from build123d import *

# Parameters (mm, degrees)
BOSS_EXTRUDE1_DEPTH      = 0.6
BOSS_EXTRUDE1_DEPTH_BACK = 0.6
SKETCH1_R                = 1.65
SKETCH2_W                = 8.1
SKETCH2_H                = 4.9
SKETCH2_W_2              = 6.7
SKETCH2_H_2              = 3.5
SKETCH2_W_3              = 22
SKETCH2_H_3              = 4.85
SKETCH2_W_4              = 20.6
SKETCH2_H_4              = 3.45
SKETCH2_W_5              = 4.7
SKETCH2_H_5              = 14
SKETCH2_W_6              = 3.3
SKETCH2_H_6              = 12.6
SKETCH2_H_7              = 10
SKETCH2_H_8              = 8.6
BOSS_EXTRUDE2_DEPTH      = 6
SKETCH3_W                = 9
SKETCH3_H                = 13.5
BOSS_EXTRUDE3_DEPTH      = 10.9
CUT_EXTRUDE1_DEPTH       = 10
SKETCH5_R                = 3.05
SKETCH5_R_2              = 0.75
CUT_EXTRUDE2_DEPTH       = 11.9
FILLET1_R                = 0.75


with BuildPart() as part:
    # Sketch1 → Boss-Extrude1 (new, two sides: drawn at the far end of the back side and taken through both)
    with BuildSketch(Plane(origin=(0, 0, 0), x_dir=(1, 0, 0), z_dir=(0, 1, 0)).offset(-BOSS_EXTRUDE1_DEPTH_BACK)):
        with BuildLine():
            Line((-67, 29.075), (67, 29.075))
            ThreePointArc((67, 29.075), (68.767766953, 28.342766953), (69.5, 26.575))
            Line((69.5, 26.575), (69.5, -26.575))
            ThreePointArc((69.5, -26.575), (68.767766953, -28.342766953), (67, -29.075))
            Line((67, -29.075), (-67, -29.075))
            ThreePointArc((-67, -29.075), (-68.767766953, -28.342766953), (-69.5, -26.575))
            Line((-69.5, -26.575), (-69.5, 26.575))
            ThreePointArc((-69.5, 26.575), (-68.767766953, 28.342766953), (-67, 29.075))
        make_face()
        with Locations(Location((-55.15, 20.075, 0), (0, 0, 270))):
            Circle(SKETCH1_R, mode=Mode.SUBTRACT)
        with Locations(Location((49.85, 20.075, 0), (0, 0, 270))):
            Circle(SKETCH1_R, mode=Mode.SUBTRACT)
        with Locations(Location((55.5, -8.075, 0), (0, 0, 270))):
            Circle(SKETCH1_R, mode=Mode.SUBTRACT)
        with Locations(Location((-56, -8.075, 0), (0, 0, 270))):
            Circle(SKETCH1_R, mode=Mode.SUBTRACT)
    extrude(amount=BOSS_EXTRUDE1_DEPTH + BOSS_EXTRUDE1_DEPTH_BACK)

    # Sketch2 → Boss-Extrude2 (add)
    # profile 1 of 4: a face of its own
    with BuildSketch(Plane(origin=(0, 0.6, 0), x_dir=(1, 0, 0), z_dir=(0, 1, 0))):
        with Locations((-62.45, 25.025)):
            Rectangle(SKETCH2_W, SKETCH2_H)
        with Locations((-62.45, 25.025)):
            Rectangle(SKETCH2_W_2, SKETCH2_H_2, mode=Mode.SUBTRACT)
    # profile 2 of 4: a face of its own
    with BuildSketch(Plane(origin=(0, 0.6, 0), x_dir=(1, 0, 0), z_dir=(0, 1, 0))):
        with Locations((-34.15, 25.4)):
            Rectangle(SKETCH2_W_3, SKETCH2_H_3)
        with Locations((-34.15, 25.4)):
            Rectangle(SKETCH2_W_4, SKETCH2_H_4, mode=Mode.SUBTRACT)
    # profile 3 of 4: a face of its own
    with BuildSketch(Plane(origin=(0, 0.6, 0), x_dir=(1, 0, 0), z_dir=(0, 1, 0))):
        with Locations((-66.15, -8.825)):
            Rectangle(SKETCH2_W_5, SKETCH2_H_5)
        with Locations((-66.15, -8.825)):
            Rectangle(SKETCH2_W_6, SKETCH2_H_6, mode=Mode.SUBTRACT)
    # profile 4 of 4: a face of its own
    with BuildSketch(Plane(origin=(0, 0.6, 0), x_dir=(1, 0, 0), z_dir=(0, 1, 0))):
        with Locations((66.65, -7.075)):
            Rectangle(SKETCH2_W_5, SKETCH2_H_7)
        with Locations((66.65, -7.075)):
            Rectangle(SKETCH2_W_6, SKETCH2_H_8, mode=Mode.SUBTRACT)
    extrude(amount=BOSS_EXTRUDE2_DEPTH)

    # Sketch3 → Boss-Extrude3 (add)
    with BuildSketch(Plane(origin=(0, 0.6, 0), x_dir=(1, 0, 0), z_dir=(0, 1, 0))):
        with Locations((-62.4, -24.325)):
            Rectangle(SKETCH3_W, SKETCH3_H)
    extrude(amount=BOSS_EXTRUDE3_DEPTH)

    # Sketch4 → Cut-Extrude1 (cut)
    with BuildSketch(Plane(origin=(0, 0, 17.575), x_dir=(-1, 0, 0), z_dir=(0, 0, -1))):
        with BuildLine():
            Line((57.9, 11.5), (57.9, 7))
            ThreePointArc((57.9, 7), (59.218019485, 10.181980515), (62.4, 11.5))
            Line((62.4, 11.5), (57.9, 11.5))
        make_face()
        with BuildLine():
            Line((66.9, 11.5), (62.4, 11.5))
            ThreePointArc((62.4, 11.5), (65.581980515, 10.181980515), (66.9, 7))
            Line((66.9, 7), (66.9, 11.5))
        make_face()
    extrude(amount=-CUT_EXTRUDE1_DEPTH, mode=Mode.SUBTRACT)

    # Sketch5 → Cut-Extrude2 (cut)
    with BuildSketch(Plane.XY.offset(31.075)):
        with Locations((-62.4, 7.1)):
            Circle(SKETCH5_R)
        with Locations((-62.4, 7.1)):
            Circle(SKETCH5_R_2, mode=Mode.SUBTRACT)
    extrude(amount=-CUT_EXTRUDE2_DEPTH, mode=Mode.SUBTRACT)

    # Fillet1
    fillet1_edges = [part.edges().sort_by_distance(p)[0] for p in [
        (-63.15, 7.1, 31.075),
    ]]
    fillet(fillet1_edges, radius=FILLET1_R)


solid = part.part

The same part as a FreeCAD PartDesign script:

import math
import FreeCAD as App
import Part
import Sketcher

V = App.Vector


def edges_at(feature, points):
    """Names of the edges that pass closest to the given points."""
    edges = feature.Shape.Edges
    near = lambda p: min(range(len(edges)), key=lambda i: edges[i].distToShape(Part.Vertex(*p))[0])
    return sorted({f"Edge{near(p) + 1}" for p in points})

doc = App.newDocument("Part")
params = doc.addObject("Spreadsheet::Sheet", "Params")
for row, (alias, value) in enumerate([
    ("sketch1_diameter", "3.3 mm"),
    ("sketch1_radius", "2.5 mm"),
    ("sketch1_width", "134 mm"),
    ("sketch1_height", "53.15 mm"),
    ("pad1_length", "0.6 mm"),
    ("pad1_length2", "0.6 mm"),
    ("sketch2_width", "22 mm"),
    ("sketch2_height", "14 mm"),
    ("sketch2_height2", "10 mm"),
    ("sketch2_width2", "8.1 mm"),
    ("sketch2_width3", "6.7 mm"),
    ("pad2_length", "6 mm"),
    ("sketch3_width", "9 mm"),
    ("sketch3_height", "13.5 mm"),
    ("pad3_length", "10.9 mm"),
    ("sketch4_radius", "4.5 mm"),
    ("pocket1_length", "10 mm"),
    ("sketch5_diameter", "6.1 mm"),
    ("sketch5_diameter2", "1.5 mm"),
    ("pocket2_length", "11.9 mm"),
    ("fillet_radius", "0.75 mm"),
], start=1):
    params.set(f"A{row}", alias)
    params.set(f"B{row}", "=" + value)
    params.setAlias(f"B{row}", alias)

body = doc.addObject("PartDesign::Body", "Body")

sketch1 = doc.addObject("Sketcher::SketchObject", "Sketch")
body.addObject(sketch1)
sketch1.AttachmentSupport = (doc.XZ_Plane, [""])
sketch1.MapMode = "FlatFace"
sketch1.addGeometry(Part.LineSegment(V(67, -29.1, 0), V(-67, -29.1, 0)), False)
sketch1.addGeometry(Part.ArcOfCircle(Part.Circle(V(-67, -26.6, 0), V(0, 0, 1), 2.5), math.radians(180), math.radians(270)), False)
sketch1.addGeometry(Part.LineSegment(V(-69.5, -26.6, 0), V(-69.5, 26.6, 0)), False)
sketch1.addGeometry(Part.ArcOfCircle(Part.Circle(V(-67, 26.6, 0), V(0, 0, 1), 2.5), math.radians(90), math.radians(180)), False)
sketch1.addGeometry(Part.LineSegment(V(-67, 29.1, 0), V(67, 29.1, 0)), False)
sketch1.addGeometry(Part.ArcOfCircle(Part.Circle(V(67, 26.6, 0), V(0, 0, 1), 2.5), math.radians(0), math.radians(90)), False)
sketch1.addGeometry(Part.LineSegment(V(69.5, 26.6, 0), V(69.5, -26.6, 0)), False)
sketch1.addGeometry(Part.ArcOfCircle(Part.Circle(V(67, -26.6, 0), V(0, 0, 1), 2.5), math.radians(-90), math.radians(0)), False)
sketch1.addGeometry(Part.Circle(V(55.5, 8.1, 0), V(0, 0, 1), 1.6), False)
sketch1.addGeometry(Part.Circle(V(-56, 8.1, 0), V(0, 0, 1), 1.6), False)
sketch1.addGeometry(Part.Circle(V(49.9, -20.1, 0), V(0, 0, 1), 1.6), False)
sketch1.addGeometry(Part.Circle(V(-55.1, -20.1, 0), V(0, 0, 1), 1.6), False)
sketch1.addConstraint(Sketcher.Constraint("Tangent", 0, 2, 1, 2))
sketch1.addConstraint(Sketcher.Constraint("Tangent", 1, 1, 2, 1))
sketch1.addConstraint(Sketcher.Constraint("Tangent", 2, 2, 3, 2))
sketch1.addConstraint(Sketcher.Constraint("Tangent", 3, 1, 4, 1))
sketch1.addConstraint(Sketcher.Constraint("Tangent", 4, 2, 5, 2))
sketch1.addConstraint(Sketcher.Constraint("Tangent", 5, 1, 6, 1))
sketch1.addConstraint(Sketcher.Constraint("Tangent", 6, 2, 7, 2))
sketch1.addConstraint(Sketcher.Constraint("Tangent", 7, 1, 0, 1))
sketch1.addConstraint(Sketcher.Constraint("Horizontal", 0))
sketch1.addConstraint(Sketcher.Constraint("Vertical", 2))
sketch1.addConstraint(Sketcher.Constraint("Horizontal", 4))
sketch1.addConstraint(Sketcher.Constraint("Vertical", 6))
sketch1.addConstraint(Sketcher.Constraint("Equal", 1, 3))
sketch1.addConstraint(Sketcher.Constraint("Equal", 3, 5))
sketch1.addConstraint(Sketcher.Constraint("Equal", 5, 7))
sketch1.addConstraint(Sketcher.Constraint("Equal", 8, 9))
sketch1.addConstraint(Sketcher.Constraint("Equal", 9, 10))
sketch1.addConstraint(Sketcher.Constraint("Equal", 10, 11))
sketch1.addConstraint(Sketcher.Constraint("Symmetric", 1, 3, 5, 3, -1, 1))
sketch1.addConstraint(Sketcher.Constraint("Horizontal", 8, 3, 9, 3))
sketch1.addConstraint(Sketcher.Constraint("Horizontal", 10, 3, 11, 3))
sketch1.addConstraint(Sketcher.Constraint("Diameter", 8, 3.3))
sketch1.addConstraint(Sketcher.Constraint("Radius", 1, 2.5))
sketch1.addConstraint(Sketcher.Constraint("DistanceX", 0, 2, 0, 1, 134.0))
sketch1.addConstraint(Sketcher.Constraint("DistanceX", 9, 3, -1, 1, 56.0))
sketch1.addConstraint(Sketcher.Constraint("DistanceX", 11, 3, 10, 3, 105.0))
sketch1.addConstraint(Sketcher.Constraint("DistanceY", 0, 2, 11, 3, 9.0))
sketch1.addConstraint(Sketcher.Constraint("DistanceY", 9, 3, 3, 1, 21.0))
sketch1.addConstraint(Sketcher.Constraint("DistanceX", 8, 3, 5, 1, 14.0))
sketch1.addConstraint(Sketcher.Constraint("DistanceY", 2, 1, 2, 2, 53.15))
sketch1.addConstraint(Sketcher.Constraint("DistanceX", -1, 1, 10, 3, 49.85))
sketch1.setExpression("Constraints[21]", "Params.sketch1_diameter")
sketch1.setExpression("Constraints[22]", "Params.sketch1_radius")
sketch1.setExpression("Constraints[23]", "Params.sketch1_width")
sketch1.setExpression("Constraints[29]", "Params.sketch1_height")
pad1 = doc.addObject("PartDesign::Pad", "Pad")
body.addObject(pad1)
pad1.Profile = sketch1
pad1.Type = "TwoLengths"
pad1.setExpression("Length", "Params.pad1_length")
pad1.setExpression("Length2", "Params.pad1_length2")
pad1.Reversed = True

sketch2 = doc.addObject("Sketcher::SketchObject", "Sketch001")
body.addObject(sketch2)
sketch2.AttachmentSupport = (doc.XZ_Plane, [""])
sketch2.MapMode = "FlatFace"
sketch2.AttachmentOffset = App.Placement(V(0, 0, -0.6), App.Rotation())
sketch2.addGeometry(Part.LineSegment(V(-66.5, -27.5, 0), V(-66.5, -22.6, 0)), False)
sketch2.addGeometry(Part.LineSegment(V(-66.5, -22.6, 0), V(-58.4, -22.6, 0)), False)
sketch2.addGeometry(Part.LineSegment(V(-58.4, -22.6, 0), V(-58.4, -27.5, 0)), False)
sketch2.addGeometry(Part.LineSegment(V(-58.4, -27.5, 0), V(-66.5, -27.5, 0)), False)
sketch2.addGeometry(Part.LineSegment(V(-59.1, -23.3, 0), V(-65.8, -23.3, 0)), False)
sketch2.addGeometry(Part.LineSegment(V(-65.8, -23.3, 0), V(-65.8, -26.8, 0)), False)
sketch2.addGeometry(Part.LineSegment(V(-65.8, -26.8, 0), V(-59.1, -26.8, 0)), False)
sketch2.addGeometry(Part.LineSegment(V(-59.1, -26.8, 0), V(-59.1, -23.3, 0)), False)
sketch2.addGeometry(Part.LineSegment(V(-45.1, -27.8, 0), V(-45.1, -23, 0)), False)
sketch2.addGeometry(Part.LineSegment(V(-45.1, -23, 0), V(-23.1, -23, 0)), False)
sketch2.addGeometry(Part.LineSegment(V(-23.1, -23, 0), V(-23.1, -27.8, 0)), False)
sketch2.addGeometry(Part.LineSegment(V(-23.1, -27.8, 0), V(-45.1, -27.8, 0)), False)
sketch2.addGeometry(Part.LineSegment(V(-23.9, -23.7, 0), V(-44.5, -23.7, 0)), False)
sketch2.addGeometry(Part.LineSegment(V(-44.5, -23.7, 0), V(-44.5, -27.1, 0)), False)
sketch2.addGeometry(Part.LineSegment(V(-44.5, -27.1, 0), V(-23.9, -27.1, 0)), False)
sketch2.addGeometry(Part.LineSegment(V(-23.9, -27.1, 0), V(-23.9, -23.7, 0)), False)
sketch2.addGeometry(Part.LineSegment(V(-68.5, 1.8, 0), V(-68.5, 15.8, 0)), False)
sketch2.addGeometry(Part.LineSegment(V(-68.5, 15.8, 0), V(-63.8, 15.8, 0)), False)
sketch2.addGeometry(Part.LineSegment(V(-63.8, 15.8, 0), V(-63.8, 1.8, 0)), False)
sketch2.addGeometry(Part.LineSegment(V(-63.8, 1.8, 0), V(-68.5, 1.8, 0)), False)
sketch2.addGeometry(Part.LineSegment(V(-64.5, 15.1, 0), V(-67.8, 15.1, 0)), False)
sketch2.addGeometry(Part.LineSegment(V(-67.8, 15.1, 0), V(-67.8, 2.5, 0)), False)
sketch2.addGeometry(Part.LineSegment(V(-67.8, 2.5, 0), V(-64.5, 2.5, 0)), False)
sketch2.addGeometry(Part.LineSegment(V(-64.5, 2.5, 0), V(-64.5, 15.1, 0)), False)
sketch2.addGeometry(Part.LineSegment(V(64.3, 2.1, 0), V(64.3, 12.1, 0)), False)
sketch2.addGeometry(Part.LineSegment(V(64.3, 12.1, 0), V(69, 12.1, 0)), False)
sketch2.addGeometry(Part.LineSegment(V(69, 12.1, 0), V(69, 2.1, 0)), False)
sketch2.addGeometry(Part.LineSegment(V(69, 2.1, 0), V(64.3, 2.1, 0)), False)
sketch2.addGeometry(Part.LineSegment(V(68.3, 11.4, 0), V(65, 11.4, 0)), False)
sketch2.addGeometry(Part.LineSegment(V(65, 11.4, 0), V(65, 2.8, 0)), False)
sketch2.addGeometry(Part.LineSegment(V(65, 2.8, 0), V(68.3, 2.8, 0)), False)
sketch2.addGeometry(Part.LineSegment(V(68.3, 2.8, 0), V(68.3, 11.4, 0)), False)
sketch2.addConstraint(Sketcher.Constraint("Coincident", 0, 2, 1, 1))
sketch2.addConstraint(Sketcher.Constraint("Coincident", 1, 2, 2, 1))
sketch2.addConstraint(Sketcher.Constraint("Coincident", 2, 2, 3, 1))
sketch2.addConstraint(Sketcher.Constraint("Coincident", 3, 2, 0, 1))
sketch2.addConstraint(Sketcher.Constraint("Coincident", 4, 2, 5, 1))
sketch2.addConstraint(Sketcher.Constraint("Coincident", 5, 2, 6, 1))
sketch2.addConstraint(Sketcher.Constraint("Coincident", 6, 2, 7, 1))
sketch2.addConstraint(Sketcher.Constraint("Coincident", 7, 2, 4, 1))
sketch2.addConstraint(Sketcher.Constraint("Coincident", 8, 2, 9, 1))
sketch2.addConstraint(Sketcher.Constraint("Coincident", 9, 2, 10, 1))
sketch2.addConstraint(Sketcher.Constraint("Coincident", 10, 2, 11, 1))
sketch2.addConstraint(Sketcher.Constraint("Coincident", 11, 2, 8, 1))
sketch2.addConstraint(Sketcher.Constraint("Coincident", 12, 2, 13, 1))
sketch2.addConstraint(Sketcher.Constraint("Coincident", 13, 2, 14, 1))
sketch2.addConstraint(Sketcher.Constraint("Coincident", 14, 2, 15, 1))
sketch2.addConstraint(Sketcher.Constraint("Coincident", 15, 2, 12, 1))
sketch2.addConstraint(Sketcher.Constraint("Coincident", 16, 2, 17, 1))
sketch2.addConstraint(Sketcher.Constraint("Coincident", 17, 2, 18, 1))
sketch2.addConstraint(Sketcher.Constraint("Coincident", 18, 2, 19, 1))
sketch2.addConstraint(Sketcher.Constraint("Coincident", 19, 2, 16, 1))
sketch2.addConstraint(Sketcher.Constraint("Coincident", 20, 2, 21, 1))
sketch2.addConstraint(Sketcher.Constraint("Coincident", 21, 2, 22, 1))
sketch2.addConstraint(Sketcher.Constraint("Coincident", 22, 2, 23, 1))
sketch2.addConstraint(Sketcher.Constraint("Coincident", 23, 2, 20, 1))
sketch2.addConstraint(Sketcher.Constraint("Coincident", 24, 2, 25, 1))
sketch2.addConstraint(Sketcher.Constraint("Coincident", 25, 2, 26, 1))
sketch2.addConstraint(Sketcher.Constraint("Coincident", 26, 2, 27, 1))
sketch2.addConstraint(Sketcher.Constraint("Coincident", 27, 2, 24, 1))
sketch2.addConstraint(Sketcher.Constraint("Coincident", 28, 2, 29, 1))
sketch2.addConstraint(Sketcher.Constraint("Coincident", 29, 2, 30, 1))
sketch2.addConstraint(Sketcher.Constraint("Coincident", 30, 2, 31, 1))
sketch2.addConstraint(Sketcher.Constraint("Coincident", 31, 2, 28, 1))
sketch2.addConstraint(Sketcher.Constraint("Vertical", 0))
sketch2.addConstraint(Sketcher.Constraint("Horizontal", 1))
sketch2.addConstraint(Sketcher.Constraint("Vertical", 2))
sketch2.addConstraint(Sketcher.Constraint("Horizontal", 3))
sketch2.addConstraint(Sketcher.Constraint("Horizontal", 4))
sketch2.addConstraint(Sketcher.Constraint("Vertical", 5))
sketch2.addConstraint(Sketcher.Constraint("Horizontal", 6))
sketch2.addConstraint(Sketcher.Constraint("Vertical", 7))
sketch2.addConstraint(Sketcher.Constraint("Vertical", 8))
sketch2.addConstraint(Sketcher.Constraint("Horizontal", 9))
sketch2.addConstraint(Sketcher.Constraint("Vertical", 10))
sketch2.addConstraint(Sketcher.Constraint("Horizontal", 11))
sketch2.addConstraint(Sketcher.Constraint("Horizontal", 12))
sketch2.addConstraint(Sketcher.Constraint("Vertical", 13))
sketch2.addConstraint(Sketcher.Constraint("Horizontal", 14))
sketch2.addConstraint(Sketcher.Constraint("Vertical", 15))
sketch2.addConstraint(Sketcher.Constraint("Vertical", 16))
sketch2.addConstraint(Sketcher.Constraint("Horizontal", 17))
sketch2.addConstraint(Sketcher.Constraint("Vertical", 18))
sketch2.addConstraint(Sketcher.Constraint("Horizontal", 19))
sketch2.addConstraint(Sketcher.Constraint("Horizontal", 20))
sketch2.addConstraint(Sketcher.Constraint("Vertical", 21))
sketch2.addConstraint(Sketcher.Constraint("Horizontal", 22))
sketch2.addConstraint(Sketcher.Constraint("Vertical", 23))
sketch2.addConstraint(Sketcher.Constraint("Vertical", 24))
sketch2.addConstraint(Sketcher.Constraint("Horizontal", 25))
sketch2.addConstraint(Sketcher.Constraint("Vertical", 26))
sketch2.addConstraint(Sketcher.Constraint("Horizontal", 27))
sketch2.addConstraint(Sketcher.Constraint("Horizontal", 28))
sketch2.addConstraint(Sketcher.Constraint("Vertical", 29))
sketch2.addConstraint(Sketcher.Constraint("Horizontal", 30))
sketch2.addConstraint(Sketcher.Constraint("Vertical", 31))
sketch2.addConstraint(Sketcher.Constraint("Equal", 19, 25))
sketch2.addConstraint(Sketcher.Constraint("Equal", 22, 28))
sketch2.addConstraint(Sketcher.Constraint("DistanceX", 9, 1, 9, 2, 22.0))
sketch2.addConstraint(Sketcher.Constraint("DistanceY", 16, 1, 16, 2, 14.0))
sketch2.addConstraint(Sketcher.Constraint("DistanceY", 24, 1, 24, 2, 10.0))
sketch2.addConstraint(Sketcher.Constraint("DistanceX", 1, 1, 1, 2, 8.1))
sketch2.addConstraint(Sketcher.Constraint("DistanceX", 4, 2, 4, 1, 6.7))
sketch2.addConstraint(Sketcher.Constraint("DistanceX", 12, 2, 12, 1, 20.6))
sketch2.addConstraint(Sketcher.Constraint("DistanceX", 17, 1, 17, 2, 4.7))
sketch2.addConstraint(Sketcher.Constraint("DistanceX", 20, 2, 20, 1, 3.3))
sketch2.addConstraint(Sketcher.Constraint("DistanceY", 0, 1, 0, 2, 4.9))
sketch2.addConstraint(Sketcher.Constraint("DistanceY", 5, 2, 5, 1, 3.5))
sketch2.addConstraint(Sketcher.Constraint("DistanceY", 21, 2, 21, 1, 12.6))
sketch2.addConstraint(Sketcher.Constraint("DistanceY", 29, 2, 29, 1, 8.6))
sketch2.addConstraint(Sketcher.Constraint("DistanceX", -1, 1, 25, 2, 69.0))
sketch2.addConstraint(Sketcher.Constraint("DistanceX", -1, 1, 28, 2, 65.0))
sketch2.addConstraint(Sketcher.Constraint("DistanceX", 16, 2, 0, 2, 2.0))
sketch2.addConstraint(Sketcher.Constraint("DistanceX", 4, 2, 17, 2, 2.0))
sketch2.addConstraint(Sketcher.Constraint("DistanceX", 20, 2, 17, 2, 4.0))
sketch2.addConstraint(Sketcher.Constraint("DistanceY", 8, 1, 8, 2, 4.85))
sketch2.addConstraint(Sketcher.Constraint("DistanceY", 13, 2, 13, 1, 3.45))
sketch2.addConstraint(Sketcher.Constraint("DistanceX", 0, 2, -1, 1, 66.5))
sketch2.addConstraint(Sketcher.Constraint("DistanceY", 4, 2, 0, 2, 0.7))
sketch2.addConstraint(Sketcher.Constraint("DistanceY", 8, 2, 1, 2, 0.4))
sketch2.addConstraint(Sketcher.Constraint("DistanceX", 8, 2, 12, 2, 0.7))
sketch2.addConstraint(Sketcher.Constraint("DistanceY", 12, 2, 8, 2, 0.7))
sketch2.addConstraint(Sketcher.Constraint("DistanceY", 0, 2, 16, 2, 38.4))
sketch2.addConstraint(Sketcher.Constraint("DistanceY", 20, 2, 16, 2, 0.7))
sketch2.addConstraint(Sketcher.Constraint("DistanceY", 10, 2, 24, 2, 39.9))
sketch2.addConstraint(Sketcher.Constraint("DistanceY", 28, 2, 24, 2, 0.7))
sketch2.addConstraint(Sketcher.Constraint("DistanceX", 8, 2, -1, 1, 45.15))
sketch2.addConstraint(Sketcher.Constraint("DistanceY", 0, 2, -1, 1, 22.575))
sketch2.setExpression("Constraints[66]", "Params.sketch2_width")
sketch2.setExpression("Constraints[67]", "Params.sketch2_height")
sketch2.setExpression("Constraints[68]", "Params.sketch2_height2")
sketch2.setExpression("Constraints[69]", "Params.sketch2_width2")
sketch2.setExpression("Constraints[70]", "Params.sketch2_width3")
pad2 = doc.addObject("PartDesign::Pad", "Pad001")
body.addObject(pad2)
pad2.Profile = sketch2
pad2.setExpression("Length", "Params.pad2_length")
pad2.Reversed = True

sketch3 = doc.addObject("Sketcher::SketchObject", "Sketch002")
body.addObject(sketch3)
sketch3.AttachmentSupport = (doc.XZ_Plane, [""])
sketch3.MapMode = "FlatFace"
sketch3.AttachmentOffset = App.Placement(V(0, 0, -0.6), App.Rotation())
sketch3.addGeometry(Part.LineSegment(V(-67, 18, 0), V(-67, 31, 0)), False)
sketch3.addGeometry(Part.LineSegment(V(-67, 31, 0), V(-58, 31, 0)), False)
sketch3.addGeometry(Part.LineSegment(V(-58, 31, 0), V(-58, 18, 0)), False)
sketch3.addGeometry(Part.LineSegment(V(-58, 18, 0), V(-67, 18, 0)), False)
sketch3.addConstraint(Sketcher.Constraint("Coincident", 0, 2, 1, 1))
sketch3.addConstraint(Sketcher.Constraint("Coincident", 1, 2, 2, 1))
sketch3.addConstraint(Sketcher.Constraint("Coincident", 2, 2, 3, 1))
sketch3.addConstraint(Sketcher.Constraint("Coincident", 3, 2, 0, 1))
sketch3.addConstraint(Sketcher.Constraint("Vertical", 0))
sketch3.addConstraint(Sketcher.Constraint("Horizontal", 1))
sketch3.addConstraint(Sketcher.Constraint("Vertical", 2))
sketch3.addConstraint(Sketcher.Constraint("Horizontal", 3))
sketch3.addConstraint(Sketcher.Constraint("DistanceX", 1, 1, 1, 2, 9.0))
sketch3.addConstraint(Sketcher.Constraint("DistanceY", 0, 1, 0, 2, 13.5))
sketch3.addConstraint(Sketcher.Constraint("DistanceX", 0, 2, -1, 1, 66.9))
sketch3.addConstraint(Sketcher.Constraint("DistanceY", -1, 1, 0, 2, 31.075))
sketch3.setExpression("Constraints[8]", "Params.sketch3_width")
sketch3.setExpression("Constraints[9]", "Params.sketch3_height")
pad3 = doc.addObject("PartDesign::Pad", "Pad002")
body.addObject(pad3)
pad3.Profile = sketch3
pad3.setExpression("Length", "Params.pad3_length")
pad3.Reversed = True

sketch4 = doc.addObject("Sketcher::SketchObject", "Sketch003")
body.addObject(sketch4)
sketch4.AttachmentSupport = (doc.XY_Plane, [""])
sketch4.MapMode = "FlatFace"
sketch4.AttachmentOffset = App.Placement(V(0, 0, 17.575), App.Rotation())
sketch4.addGeometry(Part.LineSegment(V(-57.9, 11.5, 0), V(-57.9, 7, 0)), False)
sketch4.addGeometry(Part.ArcOfCircle(Part.Circle(V(-62.4, 7, 0), V(0, 0, 1), 4.5), math.radians(0), math.radians(90)), False)
sketch4.addGeometry(Part.LineSegment(V(-62.4, 11.5, 0), V(-57.9, 11.5, 0)), False)
sketch4.addGeometry(Part.LineSegment(V(-66.9, 11.5, 0), V(-62.4, 11.5, 0)), False)
sketch4.addGeometry(Part.ArcOfCircle(Part.Circle(V(-62.4, 7, 0), V(0, 0, 1), 4.5), math.radians(90), math.radians(180)), False)
sketch4.addGeometry(Part.LineSegment(V(-66.9, 7, 0), V(-66.9, 11.5, 0)), False)
sketch4.addConstraint(Sketcher.Constraint("Tangent", 0, 2, 1, 1))
sketch4.addConstraint(Sketcher.Constraint("Tangent", 1, 2, 2, 1))
sketch4.addConstraint(Sketcher.Constraint("Coincident", 2, 2, 0, 1))
sketch4.addConstraint(Sketcher.Constraint("Tangent", 3, 2, 4, 1))
sketch4.addConstraint(Sketcher.Constraint("Tangent", 4, 2, 5, 1))
sketch4.addConstraint(Sketcher.Constraint("Coincident", 5, 2, 3, 1))
sketch4.addConstraint(Sketcher.Constraint("Vertical", 0))
sketch4.addConstraint(Sketcher.Constraint("Horizontal", 2))
sketch4.addConstraint(Sketcher.Constraint("Horizontal", 3))
sketch4.addConstraint(Sketcher.Constraint("Vertical", 5))
sketch4.addConstraint(Sketcher.Constraint("Coincident", 4, 3, 1, 3))
sketch4.addConstraint(Sketcher.Constraint("Equal", 1, 4))
sketch4.addConstraint(Sketcher.Constraint("Radius", 1, 4.5))
sketch4.addConstraint(Sketcher.Constraint("DistanceY", -1, 1, 1, 3, 7.0))
sketch4.addConstraint(Sketcher.Constraint("DistanceX", 1, 3, -1, 1, 62.4))
sketch4.setExpression("Constraints[12]", "Params.sketch4_radius")
pocket1 = doc.addObject("PartDesign::Pocket", "Pocket")
body.addObject(pocket1)
pocket1.Profile = sketch4
pocket1.setExpression("Length", "Params.pocket1_length")
pocket1.Reversed = True

sketch5 = doc.addObject("Sketcher::SketchObject", "Sketch004")
body.addObject(sketch5)
sketch5.AttachmentSupport = (doc.XY_Plane, [""])
sketch5.MapMode = "FlatFace"
sketch5.AttachmentOffset = App.Placement(V(0, 0, 31.075), App.Rotation())
sketch5.addGeometry(Part.Circle(V(-62.4, 7.1, 0), V(0, 0, 1), 3), False)
sketch5.addGeometry(Part.Circle(V(-62.4, 7.1, 0), V(0, 0, 1), 0.8), False)
sketch5.addConstraint(Sketcher.Constraint("Coincident", 1, 3, 0, 3))
sketch5.addConstraint(Sketcher.Constraint("Diameter", 0, 6.1))
sketch5.addConstraint(Sketcher.Constraint("Diameter", 1, 1.5))
sketch5.addConstraint(Sketcher.Constraint("DistanceX", 0, 3, -1, 1, 62.4))
sketch5.addConstraint(Sketcher.Constraint("DistanceY", -1, 1, 0, 3, 7.1))
sketch5.setExpression("Constraints[1]", "Params.sketch5_diameter")
sketch5.setExpression("Constraints[2]", "Params.sketch5_diameter2")
pocket2 = doc.addObject("PartDesign::Pocket", "Pocket001")
body.addObject(pocket2)
pocket2.Profile = sketch5
pocket2.setExpression("Length", "Params.pocket2_length")
doc.recompute()

fillet = doc.addObject("PartDesign::Fillet", "Fillet")
body.addObject(fillet)
fillet.Base = (pocket2, edges_at(pocket2, [(-63.15, 7.1, 31.075)]))
fillet.setExpression("Radius", "Params.fillet_radius")

doc.recompute()
